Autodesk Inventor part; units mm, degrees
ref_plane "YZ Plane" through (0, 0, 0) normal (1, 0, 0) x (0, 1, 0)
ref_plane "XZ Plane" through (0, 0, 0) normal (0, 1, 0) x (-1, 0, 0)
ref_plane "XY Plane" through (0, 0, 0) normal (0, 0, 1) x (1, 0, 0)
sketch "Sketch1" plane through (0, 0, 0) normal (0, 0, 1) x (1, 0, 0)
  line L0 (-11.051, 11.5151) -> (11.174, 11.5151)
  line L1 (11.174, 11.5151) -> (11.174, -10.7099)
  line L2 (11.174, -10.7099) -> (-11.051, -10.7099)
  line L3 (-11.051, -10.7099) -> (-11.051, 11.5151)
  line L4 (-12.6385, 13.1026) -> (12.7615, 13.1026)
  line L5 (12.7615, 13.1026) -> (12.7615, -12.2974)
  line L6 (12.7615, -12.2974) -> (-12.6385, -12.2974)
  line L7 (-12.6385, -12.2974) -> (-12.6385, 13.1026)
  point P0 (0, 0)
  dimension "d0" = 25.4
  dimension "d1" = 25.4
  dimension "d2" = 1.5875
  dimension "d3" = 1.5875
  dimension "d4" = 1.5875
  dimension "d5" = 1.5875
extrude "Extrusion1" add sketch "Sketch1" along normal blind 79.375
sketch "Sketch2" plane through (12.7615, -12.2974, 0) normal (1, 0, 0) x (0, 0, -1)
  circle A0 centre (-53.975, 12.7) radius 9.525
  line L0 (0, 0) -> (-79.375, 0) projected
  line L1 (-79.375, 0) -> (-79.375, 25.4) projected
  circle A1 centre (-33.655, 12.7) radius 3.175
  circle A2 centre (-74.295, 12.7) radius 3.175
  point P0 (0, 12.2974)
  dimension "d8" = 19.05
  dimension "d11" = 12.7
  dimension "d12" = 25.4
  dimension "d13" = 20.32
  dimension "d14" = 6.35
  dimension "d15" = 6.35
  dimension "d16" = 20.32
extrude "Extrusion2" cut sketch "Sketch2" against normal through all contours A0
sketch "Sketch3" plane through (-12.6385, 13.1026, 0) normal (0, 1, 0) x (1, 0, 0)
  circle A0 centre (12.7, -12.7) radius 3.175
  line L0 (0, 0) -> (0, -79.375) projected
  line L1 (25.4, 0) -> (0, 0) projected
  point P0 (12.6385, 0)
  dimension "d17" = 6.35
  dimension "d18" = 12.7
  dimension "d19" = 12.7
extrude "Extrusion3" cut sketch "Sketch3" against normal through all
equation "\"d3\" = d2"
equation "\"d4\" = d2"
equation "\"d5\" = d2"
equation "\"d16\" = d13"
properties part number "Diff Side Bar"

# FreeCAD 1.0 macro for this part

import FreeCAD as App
import Part
import Sketcher
Q = App.Units.Quantity


def add_polygon(sketch, points):
    """Adds a closed chain of lines whose ends are joined by coincident constraints."""
    first, n = sketch.GeometryCount, len(points)
    for a, b in zip(points, points[1:] + points[:1]):
        sketch.addGeometry(Part.LineSegment(App.Vector(*a, 0), App.Vector(*b, 0)), False)
    for i in range(n):
        sketch.addConstraint(Sketcher.Constraint("Coincident", first + i, 2, first + (i + 1) % n, 1))

doc = App.newDocument("Part")
body = doc.addObject("PartDesign::Body", "Body")

sketch1 = body.newObject("Sketcher::SketchObject", "Sketch")
sketch1.AttachmentSupport = (doc.getObject("XY_Plane"), [""])
sketch1.MapMode = "FlatFace"
add_polygon(sketch1, [(12.7615, 13.1026), (-12.6385, 13.1026), (-12.6385, -12.2974), (12.7615, -12.2974)])
add_polygon(sketch1, [(-11.051, -10.7099), (-11.051, 11.5151), (11.174, 11.5151), (11.174, -10.7099)])
sketch1.addConstraint([
    Sketcher.Constraint("Horizontal", 0),
    Sketcher.Constraint("Vertical", 1),
    Sketcher.Constraint("Horizontal", 2),
    Sketcher.Constraint("Vertical", 3),
    Sketcher.Constraint("Vertical", 4),
    Sketcher.Constraint("Horizontal", 5),
    Sketcher.Constraint("Vertical", 6),
    Sketcher.Constraint("Horizontal", 7),
    Sketcher.Constraint("Equal", 2, 1),
    Sketcher.Constraint("Equal", 7, 4),
    Sketcher.Constraint("DistanceX", 0, 2, 0, 1, Q("1 in")),
    Sketcher.Constraint("DistanceX", 0, 2, 4, 2, Q("0.0625 in")),
    Sketcher.Constraint("DistanceY", 4, 2, 0, 2, Q("0.0625 in")),
    Sketcher.Constraint("DistanceX", 5, 2, 3, 2, Q("0.0625 in")),
    Sketcher.Constraint("DistanceX", 0, 2, -1, 1, 12.6385),
    Sketcher.Constraint("DistanceY", -1, 1, 0, 2, 13.1026),
])
pad1 = body.newObject("PartDesign::Pad", "Pad")
pad1.Profile = sketch1
pad1.Length = Q("3.125 in")

sketch2 = body.newObject("Sketcher::SketchObject", "Sketch001")
sketch2.AttachmentSupport = (doc.getObject("YZ_Plane"), [""])
sketch2.MapMode = "FlatFace"
sketch2.AttachmentOffset = App.Placement(App.Vector(0, 0, 12.7615), App.Rotation())
sketch2.addGeometry(Part.Circle(App.Vector(0.4026, 53.975, 0), App.Vector(0, 0, 1), 9.525), False)
sketch2.addConstraint([
    Sketcher.Constraint("Diameter", 0, Q("0.75 in")),
    Sketcher.Constraint("DistanceY", -1, 1, 0, 3, Q("2.125 in")),
    Sketcher.Constraint("DistanceX", -1, 1, 0, 3, 0.4026),
])
pocket1 = body.newObject("PartDesign::Pocket", "Pocket")
pocket1.Profile = sketch2
pocket1.Type = "ThroughAll"

sketch3 = body.newObject("Sketcher::SketchObject", "Sketch002")
sketch3.AttachmentSupport = (doc.getObject("XZ_Plane"), [""])
sketch3.MapMode = "FlatFace"
sketch3.AttachmentOffset = App.Placement(App.Vector(0, 0, -13.1026), App.Rotation())
sketch3.addGeometry(Part.Circle(App.Vector(0.0615, 12.7, 0), App.Vector(0, 0, 1), 3.175), False)
sketch3.addConstraint([
    Sketcher.Constraint("Diameter", 0, Q("0.25 in")),
    Sketcher.Constraint("DistanceY", -1, 1, 0, 3, Q("0.5 in")),
    Sketcher.Constraint("DistanceX", -1, 1, 0, 3, 0.0615),
])
pocket2 = body.newObject("PartDesign::Pocket", "Pocket001")
pocket2.Profile = sketch3
pocket2.Type = "ThroughAll"
pocket2.Reversed = True

doc.recompute()
